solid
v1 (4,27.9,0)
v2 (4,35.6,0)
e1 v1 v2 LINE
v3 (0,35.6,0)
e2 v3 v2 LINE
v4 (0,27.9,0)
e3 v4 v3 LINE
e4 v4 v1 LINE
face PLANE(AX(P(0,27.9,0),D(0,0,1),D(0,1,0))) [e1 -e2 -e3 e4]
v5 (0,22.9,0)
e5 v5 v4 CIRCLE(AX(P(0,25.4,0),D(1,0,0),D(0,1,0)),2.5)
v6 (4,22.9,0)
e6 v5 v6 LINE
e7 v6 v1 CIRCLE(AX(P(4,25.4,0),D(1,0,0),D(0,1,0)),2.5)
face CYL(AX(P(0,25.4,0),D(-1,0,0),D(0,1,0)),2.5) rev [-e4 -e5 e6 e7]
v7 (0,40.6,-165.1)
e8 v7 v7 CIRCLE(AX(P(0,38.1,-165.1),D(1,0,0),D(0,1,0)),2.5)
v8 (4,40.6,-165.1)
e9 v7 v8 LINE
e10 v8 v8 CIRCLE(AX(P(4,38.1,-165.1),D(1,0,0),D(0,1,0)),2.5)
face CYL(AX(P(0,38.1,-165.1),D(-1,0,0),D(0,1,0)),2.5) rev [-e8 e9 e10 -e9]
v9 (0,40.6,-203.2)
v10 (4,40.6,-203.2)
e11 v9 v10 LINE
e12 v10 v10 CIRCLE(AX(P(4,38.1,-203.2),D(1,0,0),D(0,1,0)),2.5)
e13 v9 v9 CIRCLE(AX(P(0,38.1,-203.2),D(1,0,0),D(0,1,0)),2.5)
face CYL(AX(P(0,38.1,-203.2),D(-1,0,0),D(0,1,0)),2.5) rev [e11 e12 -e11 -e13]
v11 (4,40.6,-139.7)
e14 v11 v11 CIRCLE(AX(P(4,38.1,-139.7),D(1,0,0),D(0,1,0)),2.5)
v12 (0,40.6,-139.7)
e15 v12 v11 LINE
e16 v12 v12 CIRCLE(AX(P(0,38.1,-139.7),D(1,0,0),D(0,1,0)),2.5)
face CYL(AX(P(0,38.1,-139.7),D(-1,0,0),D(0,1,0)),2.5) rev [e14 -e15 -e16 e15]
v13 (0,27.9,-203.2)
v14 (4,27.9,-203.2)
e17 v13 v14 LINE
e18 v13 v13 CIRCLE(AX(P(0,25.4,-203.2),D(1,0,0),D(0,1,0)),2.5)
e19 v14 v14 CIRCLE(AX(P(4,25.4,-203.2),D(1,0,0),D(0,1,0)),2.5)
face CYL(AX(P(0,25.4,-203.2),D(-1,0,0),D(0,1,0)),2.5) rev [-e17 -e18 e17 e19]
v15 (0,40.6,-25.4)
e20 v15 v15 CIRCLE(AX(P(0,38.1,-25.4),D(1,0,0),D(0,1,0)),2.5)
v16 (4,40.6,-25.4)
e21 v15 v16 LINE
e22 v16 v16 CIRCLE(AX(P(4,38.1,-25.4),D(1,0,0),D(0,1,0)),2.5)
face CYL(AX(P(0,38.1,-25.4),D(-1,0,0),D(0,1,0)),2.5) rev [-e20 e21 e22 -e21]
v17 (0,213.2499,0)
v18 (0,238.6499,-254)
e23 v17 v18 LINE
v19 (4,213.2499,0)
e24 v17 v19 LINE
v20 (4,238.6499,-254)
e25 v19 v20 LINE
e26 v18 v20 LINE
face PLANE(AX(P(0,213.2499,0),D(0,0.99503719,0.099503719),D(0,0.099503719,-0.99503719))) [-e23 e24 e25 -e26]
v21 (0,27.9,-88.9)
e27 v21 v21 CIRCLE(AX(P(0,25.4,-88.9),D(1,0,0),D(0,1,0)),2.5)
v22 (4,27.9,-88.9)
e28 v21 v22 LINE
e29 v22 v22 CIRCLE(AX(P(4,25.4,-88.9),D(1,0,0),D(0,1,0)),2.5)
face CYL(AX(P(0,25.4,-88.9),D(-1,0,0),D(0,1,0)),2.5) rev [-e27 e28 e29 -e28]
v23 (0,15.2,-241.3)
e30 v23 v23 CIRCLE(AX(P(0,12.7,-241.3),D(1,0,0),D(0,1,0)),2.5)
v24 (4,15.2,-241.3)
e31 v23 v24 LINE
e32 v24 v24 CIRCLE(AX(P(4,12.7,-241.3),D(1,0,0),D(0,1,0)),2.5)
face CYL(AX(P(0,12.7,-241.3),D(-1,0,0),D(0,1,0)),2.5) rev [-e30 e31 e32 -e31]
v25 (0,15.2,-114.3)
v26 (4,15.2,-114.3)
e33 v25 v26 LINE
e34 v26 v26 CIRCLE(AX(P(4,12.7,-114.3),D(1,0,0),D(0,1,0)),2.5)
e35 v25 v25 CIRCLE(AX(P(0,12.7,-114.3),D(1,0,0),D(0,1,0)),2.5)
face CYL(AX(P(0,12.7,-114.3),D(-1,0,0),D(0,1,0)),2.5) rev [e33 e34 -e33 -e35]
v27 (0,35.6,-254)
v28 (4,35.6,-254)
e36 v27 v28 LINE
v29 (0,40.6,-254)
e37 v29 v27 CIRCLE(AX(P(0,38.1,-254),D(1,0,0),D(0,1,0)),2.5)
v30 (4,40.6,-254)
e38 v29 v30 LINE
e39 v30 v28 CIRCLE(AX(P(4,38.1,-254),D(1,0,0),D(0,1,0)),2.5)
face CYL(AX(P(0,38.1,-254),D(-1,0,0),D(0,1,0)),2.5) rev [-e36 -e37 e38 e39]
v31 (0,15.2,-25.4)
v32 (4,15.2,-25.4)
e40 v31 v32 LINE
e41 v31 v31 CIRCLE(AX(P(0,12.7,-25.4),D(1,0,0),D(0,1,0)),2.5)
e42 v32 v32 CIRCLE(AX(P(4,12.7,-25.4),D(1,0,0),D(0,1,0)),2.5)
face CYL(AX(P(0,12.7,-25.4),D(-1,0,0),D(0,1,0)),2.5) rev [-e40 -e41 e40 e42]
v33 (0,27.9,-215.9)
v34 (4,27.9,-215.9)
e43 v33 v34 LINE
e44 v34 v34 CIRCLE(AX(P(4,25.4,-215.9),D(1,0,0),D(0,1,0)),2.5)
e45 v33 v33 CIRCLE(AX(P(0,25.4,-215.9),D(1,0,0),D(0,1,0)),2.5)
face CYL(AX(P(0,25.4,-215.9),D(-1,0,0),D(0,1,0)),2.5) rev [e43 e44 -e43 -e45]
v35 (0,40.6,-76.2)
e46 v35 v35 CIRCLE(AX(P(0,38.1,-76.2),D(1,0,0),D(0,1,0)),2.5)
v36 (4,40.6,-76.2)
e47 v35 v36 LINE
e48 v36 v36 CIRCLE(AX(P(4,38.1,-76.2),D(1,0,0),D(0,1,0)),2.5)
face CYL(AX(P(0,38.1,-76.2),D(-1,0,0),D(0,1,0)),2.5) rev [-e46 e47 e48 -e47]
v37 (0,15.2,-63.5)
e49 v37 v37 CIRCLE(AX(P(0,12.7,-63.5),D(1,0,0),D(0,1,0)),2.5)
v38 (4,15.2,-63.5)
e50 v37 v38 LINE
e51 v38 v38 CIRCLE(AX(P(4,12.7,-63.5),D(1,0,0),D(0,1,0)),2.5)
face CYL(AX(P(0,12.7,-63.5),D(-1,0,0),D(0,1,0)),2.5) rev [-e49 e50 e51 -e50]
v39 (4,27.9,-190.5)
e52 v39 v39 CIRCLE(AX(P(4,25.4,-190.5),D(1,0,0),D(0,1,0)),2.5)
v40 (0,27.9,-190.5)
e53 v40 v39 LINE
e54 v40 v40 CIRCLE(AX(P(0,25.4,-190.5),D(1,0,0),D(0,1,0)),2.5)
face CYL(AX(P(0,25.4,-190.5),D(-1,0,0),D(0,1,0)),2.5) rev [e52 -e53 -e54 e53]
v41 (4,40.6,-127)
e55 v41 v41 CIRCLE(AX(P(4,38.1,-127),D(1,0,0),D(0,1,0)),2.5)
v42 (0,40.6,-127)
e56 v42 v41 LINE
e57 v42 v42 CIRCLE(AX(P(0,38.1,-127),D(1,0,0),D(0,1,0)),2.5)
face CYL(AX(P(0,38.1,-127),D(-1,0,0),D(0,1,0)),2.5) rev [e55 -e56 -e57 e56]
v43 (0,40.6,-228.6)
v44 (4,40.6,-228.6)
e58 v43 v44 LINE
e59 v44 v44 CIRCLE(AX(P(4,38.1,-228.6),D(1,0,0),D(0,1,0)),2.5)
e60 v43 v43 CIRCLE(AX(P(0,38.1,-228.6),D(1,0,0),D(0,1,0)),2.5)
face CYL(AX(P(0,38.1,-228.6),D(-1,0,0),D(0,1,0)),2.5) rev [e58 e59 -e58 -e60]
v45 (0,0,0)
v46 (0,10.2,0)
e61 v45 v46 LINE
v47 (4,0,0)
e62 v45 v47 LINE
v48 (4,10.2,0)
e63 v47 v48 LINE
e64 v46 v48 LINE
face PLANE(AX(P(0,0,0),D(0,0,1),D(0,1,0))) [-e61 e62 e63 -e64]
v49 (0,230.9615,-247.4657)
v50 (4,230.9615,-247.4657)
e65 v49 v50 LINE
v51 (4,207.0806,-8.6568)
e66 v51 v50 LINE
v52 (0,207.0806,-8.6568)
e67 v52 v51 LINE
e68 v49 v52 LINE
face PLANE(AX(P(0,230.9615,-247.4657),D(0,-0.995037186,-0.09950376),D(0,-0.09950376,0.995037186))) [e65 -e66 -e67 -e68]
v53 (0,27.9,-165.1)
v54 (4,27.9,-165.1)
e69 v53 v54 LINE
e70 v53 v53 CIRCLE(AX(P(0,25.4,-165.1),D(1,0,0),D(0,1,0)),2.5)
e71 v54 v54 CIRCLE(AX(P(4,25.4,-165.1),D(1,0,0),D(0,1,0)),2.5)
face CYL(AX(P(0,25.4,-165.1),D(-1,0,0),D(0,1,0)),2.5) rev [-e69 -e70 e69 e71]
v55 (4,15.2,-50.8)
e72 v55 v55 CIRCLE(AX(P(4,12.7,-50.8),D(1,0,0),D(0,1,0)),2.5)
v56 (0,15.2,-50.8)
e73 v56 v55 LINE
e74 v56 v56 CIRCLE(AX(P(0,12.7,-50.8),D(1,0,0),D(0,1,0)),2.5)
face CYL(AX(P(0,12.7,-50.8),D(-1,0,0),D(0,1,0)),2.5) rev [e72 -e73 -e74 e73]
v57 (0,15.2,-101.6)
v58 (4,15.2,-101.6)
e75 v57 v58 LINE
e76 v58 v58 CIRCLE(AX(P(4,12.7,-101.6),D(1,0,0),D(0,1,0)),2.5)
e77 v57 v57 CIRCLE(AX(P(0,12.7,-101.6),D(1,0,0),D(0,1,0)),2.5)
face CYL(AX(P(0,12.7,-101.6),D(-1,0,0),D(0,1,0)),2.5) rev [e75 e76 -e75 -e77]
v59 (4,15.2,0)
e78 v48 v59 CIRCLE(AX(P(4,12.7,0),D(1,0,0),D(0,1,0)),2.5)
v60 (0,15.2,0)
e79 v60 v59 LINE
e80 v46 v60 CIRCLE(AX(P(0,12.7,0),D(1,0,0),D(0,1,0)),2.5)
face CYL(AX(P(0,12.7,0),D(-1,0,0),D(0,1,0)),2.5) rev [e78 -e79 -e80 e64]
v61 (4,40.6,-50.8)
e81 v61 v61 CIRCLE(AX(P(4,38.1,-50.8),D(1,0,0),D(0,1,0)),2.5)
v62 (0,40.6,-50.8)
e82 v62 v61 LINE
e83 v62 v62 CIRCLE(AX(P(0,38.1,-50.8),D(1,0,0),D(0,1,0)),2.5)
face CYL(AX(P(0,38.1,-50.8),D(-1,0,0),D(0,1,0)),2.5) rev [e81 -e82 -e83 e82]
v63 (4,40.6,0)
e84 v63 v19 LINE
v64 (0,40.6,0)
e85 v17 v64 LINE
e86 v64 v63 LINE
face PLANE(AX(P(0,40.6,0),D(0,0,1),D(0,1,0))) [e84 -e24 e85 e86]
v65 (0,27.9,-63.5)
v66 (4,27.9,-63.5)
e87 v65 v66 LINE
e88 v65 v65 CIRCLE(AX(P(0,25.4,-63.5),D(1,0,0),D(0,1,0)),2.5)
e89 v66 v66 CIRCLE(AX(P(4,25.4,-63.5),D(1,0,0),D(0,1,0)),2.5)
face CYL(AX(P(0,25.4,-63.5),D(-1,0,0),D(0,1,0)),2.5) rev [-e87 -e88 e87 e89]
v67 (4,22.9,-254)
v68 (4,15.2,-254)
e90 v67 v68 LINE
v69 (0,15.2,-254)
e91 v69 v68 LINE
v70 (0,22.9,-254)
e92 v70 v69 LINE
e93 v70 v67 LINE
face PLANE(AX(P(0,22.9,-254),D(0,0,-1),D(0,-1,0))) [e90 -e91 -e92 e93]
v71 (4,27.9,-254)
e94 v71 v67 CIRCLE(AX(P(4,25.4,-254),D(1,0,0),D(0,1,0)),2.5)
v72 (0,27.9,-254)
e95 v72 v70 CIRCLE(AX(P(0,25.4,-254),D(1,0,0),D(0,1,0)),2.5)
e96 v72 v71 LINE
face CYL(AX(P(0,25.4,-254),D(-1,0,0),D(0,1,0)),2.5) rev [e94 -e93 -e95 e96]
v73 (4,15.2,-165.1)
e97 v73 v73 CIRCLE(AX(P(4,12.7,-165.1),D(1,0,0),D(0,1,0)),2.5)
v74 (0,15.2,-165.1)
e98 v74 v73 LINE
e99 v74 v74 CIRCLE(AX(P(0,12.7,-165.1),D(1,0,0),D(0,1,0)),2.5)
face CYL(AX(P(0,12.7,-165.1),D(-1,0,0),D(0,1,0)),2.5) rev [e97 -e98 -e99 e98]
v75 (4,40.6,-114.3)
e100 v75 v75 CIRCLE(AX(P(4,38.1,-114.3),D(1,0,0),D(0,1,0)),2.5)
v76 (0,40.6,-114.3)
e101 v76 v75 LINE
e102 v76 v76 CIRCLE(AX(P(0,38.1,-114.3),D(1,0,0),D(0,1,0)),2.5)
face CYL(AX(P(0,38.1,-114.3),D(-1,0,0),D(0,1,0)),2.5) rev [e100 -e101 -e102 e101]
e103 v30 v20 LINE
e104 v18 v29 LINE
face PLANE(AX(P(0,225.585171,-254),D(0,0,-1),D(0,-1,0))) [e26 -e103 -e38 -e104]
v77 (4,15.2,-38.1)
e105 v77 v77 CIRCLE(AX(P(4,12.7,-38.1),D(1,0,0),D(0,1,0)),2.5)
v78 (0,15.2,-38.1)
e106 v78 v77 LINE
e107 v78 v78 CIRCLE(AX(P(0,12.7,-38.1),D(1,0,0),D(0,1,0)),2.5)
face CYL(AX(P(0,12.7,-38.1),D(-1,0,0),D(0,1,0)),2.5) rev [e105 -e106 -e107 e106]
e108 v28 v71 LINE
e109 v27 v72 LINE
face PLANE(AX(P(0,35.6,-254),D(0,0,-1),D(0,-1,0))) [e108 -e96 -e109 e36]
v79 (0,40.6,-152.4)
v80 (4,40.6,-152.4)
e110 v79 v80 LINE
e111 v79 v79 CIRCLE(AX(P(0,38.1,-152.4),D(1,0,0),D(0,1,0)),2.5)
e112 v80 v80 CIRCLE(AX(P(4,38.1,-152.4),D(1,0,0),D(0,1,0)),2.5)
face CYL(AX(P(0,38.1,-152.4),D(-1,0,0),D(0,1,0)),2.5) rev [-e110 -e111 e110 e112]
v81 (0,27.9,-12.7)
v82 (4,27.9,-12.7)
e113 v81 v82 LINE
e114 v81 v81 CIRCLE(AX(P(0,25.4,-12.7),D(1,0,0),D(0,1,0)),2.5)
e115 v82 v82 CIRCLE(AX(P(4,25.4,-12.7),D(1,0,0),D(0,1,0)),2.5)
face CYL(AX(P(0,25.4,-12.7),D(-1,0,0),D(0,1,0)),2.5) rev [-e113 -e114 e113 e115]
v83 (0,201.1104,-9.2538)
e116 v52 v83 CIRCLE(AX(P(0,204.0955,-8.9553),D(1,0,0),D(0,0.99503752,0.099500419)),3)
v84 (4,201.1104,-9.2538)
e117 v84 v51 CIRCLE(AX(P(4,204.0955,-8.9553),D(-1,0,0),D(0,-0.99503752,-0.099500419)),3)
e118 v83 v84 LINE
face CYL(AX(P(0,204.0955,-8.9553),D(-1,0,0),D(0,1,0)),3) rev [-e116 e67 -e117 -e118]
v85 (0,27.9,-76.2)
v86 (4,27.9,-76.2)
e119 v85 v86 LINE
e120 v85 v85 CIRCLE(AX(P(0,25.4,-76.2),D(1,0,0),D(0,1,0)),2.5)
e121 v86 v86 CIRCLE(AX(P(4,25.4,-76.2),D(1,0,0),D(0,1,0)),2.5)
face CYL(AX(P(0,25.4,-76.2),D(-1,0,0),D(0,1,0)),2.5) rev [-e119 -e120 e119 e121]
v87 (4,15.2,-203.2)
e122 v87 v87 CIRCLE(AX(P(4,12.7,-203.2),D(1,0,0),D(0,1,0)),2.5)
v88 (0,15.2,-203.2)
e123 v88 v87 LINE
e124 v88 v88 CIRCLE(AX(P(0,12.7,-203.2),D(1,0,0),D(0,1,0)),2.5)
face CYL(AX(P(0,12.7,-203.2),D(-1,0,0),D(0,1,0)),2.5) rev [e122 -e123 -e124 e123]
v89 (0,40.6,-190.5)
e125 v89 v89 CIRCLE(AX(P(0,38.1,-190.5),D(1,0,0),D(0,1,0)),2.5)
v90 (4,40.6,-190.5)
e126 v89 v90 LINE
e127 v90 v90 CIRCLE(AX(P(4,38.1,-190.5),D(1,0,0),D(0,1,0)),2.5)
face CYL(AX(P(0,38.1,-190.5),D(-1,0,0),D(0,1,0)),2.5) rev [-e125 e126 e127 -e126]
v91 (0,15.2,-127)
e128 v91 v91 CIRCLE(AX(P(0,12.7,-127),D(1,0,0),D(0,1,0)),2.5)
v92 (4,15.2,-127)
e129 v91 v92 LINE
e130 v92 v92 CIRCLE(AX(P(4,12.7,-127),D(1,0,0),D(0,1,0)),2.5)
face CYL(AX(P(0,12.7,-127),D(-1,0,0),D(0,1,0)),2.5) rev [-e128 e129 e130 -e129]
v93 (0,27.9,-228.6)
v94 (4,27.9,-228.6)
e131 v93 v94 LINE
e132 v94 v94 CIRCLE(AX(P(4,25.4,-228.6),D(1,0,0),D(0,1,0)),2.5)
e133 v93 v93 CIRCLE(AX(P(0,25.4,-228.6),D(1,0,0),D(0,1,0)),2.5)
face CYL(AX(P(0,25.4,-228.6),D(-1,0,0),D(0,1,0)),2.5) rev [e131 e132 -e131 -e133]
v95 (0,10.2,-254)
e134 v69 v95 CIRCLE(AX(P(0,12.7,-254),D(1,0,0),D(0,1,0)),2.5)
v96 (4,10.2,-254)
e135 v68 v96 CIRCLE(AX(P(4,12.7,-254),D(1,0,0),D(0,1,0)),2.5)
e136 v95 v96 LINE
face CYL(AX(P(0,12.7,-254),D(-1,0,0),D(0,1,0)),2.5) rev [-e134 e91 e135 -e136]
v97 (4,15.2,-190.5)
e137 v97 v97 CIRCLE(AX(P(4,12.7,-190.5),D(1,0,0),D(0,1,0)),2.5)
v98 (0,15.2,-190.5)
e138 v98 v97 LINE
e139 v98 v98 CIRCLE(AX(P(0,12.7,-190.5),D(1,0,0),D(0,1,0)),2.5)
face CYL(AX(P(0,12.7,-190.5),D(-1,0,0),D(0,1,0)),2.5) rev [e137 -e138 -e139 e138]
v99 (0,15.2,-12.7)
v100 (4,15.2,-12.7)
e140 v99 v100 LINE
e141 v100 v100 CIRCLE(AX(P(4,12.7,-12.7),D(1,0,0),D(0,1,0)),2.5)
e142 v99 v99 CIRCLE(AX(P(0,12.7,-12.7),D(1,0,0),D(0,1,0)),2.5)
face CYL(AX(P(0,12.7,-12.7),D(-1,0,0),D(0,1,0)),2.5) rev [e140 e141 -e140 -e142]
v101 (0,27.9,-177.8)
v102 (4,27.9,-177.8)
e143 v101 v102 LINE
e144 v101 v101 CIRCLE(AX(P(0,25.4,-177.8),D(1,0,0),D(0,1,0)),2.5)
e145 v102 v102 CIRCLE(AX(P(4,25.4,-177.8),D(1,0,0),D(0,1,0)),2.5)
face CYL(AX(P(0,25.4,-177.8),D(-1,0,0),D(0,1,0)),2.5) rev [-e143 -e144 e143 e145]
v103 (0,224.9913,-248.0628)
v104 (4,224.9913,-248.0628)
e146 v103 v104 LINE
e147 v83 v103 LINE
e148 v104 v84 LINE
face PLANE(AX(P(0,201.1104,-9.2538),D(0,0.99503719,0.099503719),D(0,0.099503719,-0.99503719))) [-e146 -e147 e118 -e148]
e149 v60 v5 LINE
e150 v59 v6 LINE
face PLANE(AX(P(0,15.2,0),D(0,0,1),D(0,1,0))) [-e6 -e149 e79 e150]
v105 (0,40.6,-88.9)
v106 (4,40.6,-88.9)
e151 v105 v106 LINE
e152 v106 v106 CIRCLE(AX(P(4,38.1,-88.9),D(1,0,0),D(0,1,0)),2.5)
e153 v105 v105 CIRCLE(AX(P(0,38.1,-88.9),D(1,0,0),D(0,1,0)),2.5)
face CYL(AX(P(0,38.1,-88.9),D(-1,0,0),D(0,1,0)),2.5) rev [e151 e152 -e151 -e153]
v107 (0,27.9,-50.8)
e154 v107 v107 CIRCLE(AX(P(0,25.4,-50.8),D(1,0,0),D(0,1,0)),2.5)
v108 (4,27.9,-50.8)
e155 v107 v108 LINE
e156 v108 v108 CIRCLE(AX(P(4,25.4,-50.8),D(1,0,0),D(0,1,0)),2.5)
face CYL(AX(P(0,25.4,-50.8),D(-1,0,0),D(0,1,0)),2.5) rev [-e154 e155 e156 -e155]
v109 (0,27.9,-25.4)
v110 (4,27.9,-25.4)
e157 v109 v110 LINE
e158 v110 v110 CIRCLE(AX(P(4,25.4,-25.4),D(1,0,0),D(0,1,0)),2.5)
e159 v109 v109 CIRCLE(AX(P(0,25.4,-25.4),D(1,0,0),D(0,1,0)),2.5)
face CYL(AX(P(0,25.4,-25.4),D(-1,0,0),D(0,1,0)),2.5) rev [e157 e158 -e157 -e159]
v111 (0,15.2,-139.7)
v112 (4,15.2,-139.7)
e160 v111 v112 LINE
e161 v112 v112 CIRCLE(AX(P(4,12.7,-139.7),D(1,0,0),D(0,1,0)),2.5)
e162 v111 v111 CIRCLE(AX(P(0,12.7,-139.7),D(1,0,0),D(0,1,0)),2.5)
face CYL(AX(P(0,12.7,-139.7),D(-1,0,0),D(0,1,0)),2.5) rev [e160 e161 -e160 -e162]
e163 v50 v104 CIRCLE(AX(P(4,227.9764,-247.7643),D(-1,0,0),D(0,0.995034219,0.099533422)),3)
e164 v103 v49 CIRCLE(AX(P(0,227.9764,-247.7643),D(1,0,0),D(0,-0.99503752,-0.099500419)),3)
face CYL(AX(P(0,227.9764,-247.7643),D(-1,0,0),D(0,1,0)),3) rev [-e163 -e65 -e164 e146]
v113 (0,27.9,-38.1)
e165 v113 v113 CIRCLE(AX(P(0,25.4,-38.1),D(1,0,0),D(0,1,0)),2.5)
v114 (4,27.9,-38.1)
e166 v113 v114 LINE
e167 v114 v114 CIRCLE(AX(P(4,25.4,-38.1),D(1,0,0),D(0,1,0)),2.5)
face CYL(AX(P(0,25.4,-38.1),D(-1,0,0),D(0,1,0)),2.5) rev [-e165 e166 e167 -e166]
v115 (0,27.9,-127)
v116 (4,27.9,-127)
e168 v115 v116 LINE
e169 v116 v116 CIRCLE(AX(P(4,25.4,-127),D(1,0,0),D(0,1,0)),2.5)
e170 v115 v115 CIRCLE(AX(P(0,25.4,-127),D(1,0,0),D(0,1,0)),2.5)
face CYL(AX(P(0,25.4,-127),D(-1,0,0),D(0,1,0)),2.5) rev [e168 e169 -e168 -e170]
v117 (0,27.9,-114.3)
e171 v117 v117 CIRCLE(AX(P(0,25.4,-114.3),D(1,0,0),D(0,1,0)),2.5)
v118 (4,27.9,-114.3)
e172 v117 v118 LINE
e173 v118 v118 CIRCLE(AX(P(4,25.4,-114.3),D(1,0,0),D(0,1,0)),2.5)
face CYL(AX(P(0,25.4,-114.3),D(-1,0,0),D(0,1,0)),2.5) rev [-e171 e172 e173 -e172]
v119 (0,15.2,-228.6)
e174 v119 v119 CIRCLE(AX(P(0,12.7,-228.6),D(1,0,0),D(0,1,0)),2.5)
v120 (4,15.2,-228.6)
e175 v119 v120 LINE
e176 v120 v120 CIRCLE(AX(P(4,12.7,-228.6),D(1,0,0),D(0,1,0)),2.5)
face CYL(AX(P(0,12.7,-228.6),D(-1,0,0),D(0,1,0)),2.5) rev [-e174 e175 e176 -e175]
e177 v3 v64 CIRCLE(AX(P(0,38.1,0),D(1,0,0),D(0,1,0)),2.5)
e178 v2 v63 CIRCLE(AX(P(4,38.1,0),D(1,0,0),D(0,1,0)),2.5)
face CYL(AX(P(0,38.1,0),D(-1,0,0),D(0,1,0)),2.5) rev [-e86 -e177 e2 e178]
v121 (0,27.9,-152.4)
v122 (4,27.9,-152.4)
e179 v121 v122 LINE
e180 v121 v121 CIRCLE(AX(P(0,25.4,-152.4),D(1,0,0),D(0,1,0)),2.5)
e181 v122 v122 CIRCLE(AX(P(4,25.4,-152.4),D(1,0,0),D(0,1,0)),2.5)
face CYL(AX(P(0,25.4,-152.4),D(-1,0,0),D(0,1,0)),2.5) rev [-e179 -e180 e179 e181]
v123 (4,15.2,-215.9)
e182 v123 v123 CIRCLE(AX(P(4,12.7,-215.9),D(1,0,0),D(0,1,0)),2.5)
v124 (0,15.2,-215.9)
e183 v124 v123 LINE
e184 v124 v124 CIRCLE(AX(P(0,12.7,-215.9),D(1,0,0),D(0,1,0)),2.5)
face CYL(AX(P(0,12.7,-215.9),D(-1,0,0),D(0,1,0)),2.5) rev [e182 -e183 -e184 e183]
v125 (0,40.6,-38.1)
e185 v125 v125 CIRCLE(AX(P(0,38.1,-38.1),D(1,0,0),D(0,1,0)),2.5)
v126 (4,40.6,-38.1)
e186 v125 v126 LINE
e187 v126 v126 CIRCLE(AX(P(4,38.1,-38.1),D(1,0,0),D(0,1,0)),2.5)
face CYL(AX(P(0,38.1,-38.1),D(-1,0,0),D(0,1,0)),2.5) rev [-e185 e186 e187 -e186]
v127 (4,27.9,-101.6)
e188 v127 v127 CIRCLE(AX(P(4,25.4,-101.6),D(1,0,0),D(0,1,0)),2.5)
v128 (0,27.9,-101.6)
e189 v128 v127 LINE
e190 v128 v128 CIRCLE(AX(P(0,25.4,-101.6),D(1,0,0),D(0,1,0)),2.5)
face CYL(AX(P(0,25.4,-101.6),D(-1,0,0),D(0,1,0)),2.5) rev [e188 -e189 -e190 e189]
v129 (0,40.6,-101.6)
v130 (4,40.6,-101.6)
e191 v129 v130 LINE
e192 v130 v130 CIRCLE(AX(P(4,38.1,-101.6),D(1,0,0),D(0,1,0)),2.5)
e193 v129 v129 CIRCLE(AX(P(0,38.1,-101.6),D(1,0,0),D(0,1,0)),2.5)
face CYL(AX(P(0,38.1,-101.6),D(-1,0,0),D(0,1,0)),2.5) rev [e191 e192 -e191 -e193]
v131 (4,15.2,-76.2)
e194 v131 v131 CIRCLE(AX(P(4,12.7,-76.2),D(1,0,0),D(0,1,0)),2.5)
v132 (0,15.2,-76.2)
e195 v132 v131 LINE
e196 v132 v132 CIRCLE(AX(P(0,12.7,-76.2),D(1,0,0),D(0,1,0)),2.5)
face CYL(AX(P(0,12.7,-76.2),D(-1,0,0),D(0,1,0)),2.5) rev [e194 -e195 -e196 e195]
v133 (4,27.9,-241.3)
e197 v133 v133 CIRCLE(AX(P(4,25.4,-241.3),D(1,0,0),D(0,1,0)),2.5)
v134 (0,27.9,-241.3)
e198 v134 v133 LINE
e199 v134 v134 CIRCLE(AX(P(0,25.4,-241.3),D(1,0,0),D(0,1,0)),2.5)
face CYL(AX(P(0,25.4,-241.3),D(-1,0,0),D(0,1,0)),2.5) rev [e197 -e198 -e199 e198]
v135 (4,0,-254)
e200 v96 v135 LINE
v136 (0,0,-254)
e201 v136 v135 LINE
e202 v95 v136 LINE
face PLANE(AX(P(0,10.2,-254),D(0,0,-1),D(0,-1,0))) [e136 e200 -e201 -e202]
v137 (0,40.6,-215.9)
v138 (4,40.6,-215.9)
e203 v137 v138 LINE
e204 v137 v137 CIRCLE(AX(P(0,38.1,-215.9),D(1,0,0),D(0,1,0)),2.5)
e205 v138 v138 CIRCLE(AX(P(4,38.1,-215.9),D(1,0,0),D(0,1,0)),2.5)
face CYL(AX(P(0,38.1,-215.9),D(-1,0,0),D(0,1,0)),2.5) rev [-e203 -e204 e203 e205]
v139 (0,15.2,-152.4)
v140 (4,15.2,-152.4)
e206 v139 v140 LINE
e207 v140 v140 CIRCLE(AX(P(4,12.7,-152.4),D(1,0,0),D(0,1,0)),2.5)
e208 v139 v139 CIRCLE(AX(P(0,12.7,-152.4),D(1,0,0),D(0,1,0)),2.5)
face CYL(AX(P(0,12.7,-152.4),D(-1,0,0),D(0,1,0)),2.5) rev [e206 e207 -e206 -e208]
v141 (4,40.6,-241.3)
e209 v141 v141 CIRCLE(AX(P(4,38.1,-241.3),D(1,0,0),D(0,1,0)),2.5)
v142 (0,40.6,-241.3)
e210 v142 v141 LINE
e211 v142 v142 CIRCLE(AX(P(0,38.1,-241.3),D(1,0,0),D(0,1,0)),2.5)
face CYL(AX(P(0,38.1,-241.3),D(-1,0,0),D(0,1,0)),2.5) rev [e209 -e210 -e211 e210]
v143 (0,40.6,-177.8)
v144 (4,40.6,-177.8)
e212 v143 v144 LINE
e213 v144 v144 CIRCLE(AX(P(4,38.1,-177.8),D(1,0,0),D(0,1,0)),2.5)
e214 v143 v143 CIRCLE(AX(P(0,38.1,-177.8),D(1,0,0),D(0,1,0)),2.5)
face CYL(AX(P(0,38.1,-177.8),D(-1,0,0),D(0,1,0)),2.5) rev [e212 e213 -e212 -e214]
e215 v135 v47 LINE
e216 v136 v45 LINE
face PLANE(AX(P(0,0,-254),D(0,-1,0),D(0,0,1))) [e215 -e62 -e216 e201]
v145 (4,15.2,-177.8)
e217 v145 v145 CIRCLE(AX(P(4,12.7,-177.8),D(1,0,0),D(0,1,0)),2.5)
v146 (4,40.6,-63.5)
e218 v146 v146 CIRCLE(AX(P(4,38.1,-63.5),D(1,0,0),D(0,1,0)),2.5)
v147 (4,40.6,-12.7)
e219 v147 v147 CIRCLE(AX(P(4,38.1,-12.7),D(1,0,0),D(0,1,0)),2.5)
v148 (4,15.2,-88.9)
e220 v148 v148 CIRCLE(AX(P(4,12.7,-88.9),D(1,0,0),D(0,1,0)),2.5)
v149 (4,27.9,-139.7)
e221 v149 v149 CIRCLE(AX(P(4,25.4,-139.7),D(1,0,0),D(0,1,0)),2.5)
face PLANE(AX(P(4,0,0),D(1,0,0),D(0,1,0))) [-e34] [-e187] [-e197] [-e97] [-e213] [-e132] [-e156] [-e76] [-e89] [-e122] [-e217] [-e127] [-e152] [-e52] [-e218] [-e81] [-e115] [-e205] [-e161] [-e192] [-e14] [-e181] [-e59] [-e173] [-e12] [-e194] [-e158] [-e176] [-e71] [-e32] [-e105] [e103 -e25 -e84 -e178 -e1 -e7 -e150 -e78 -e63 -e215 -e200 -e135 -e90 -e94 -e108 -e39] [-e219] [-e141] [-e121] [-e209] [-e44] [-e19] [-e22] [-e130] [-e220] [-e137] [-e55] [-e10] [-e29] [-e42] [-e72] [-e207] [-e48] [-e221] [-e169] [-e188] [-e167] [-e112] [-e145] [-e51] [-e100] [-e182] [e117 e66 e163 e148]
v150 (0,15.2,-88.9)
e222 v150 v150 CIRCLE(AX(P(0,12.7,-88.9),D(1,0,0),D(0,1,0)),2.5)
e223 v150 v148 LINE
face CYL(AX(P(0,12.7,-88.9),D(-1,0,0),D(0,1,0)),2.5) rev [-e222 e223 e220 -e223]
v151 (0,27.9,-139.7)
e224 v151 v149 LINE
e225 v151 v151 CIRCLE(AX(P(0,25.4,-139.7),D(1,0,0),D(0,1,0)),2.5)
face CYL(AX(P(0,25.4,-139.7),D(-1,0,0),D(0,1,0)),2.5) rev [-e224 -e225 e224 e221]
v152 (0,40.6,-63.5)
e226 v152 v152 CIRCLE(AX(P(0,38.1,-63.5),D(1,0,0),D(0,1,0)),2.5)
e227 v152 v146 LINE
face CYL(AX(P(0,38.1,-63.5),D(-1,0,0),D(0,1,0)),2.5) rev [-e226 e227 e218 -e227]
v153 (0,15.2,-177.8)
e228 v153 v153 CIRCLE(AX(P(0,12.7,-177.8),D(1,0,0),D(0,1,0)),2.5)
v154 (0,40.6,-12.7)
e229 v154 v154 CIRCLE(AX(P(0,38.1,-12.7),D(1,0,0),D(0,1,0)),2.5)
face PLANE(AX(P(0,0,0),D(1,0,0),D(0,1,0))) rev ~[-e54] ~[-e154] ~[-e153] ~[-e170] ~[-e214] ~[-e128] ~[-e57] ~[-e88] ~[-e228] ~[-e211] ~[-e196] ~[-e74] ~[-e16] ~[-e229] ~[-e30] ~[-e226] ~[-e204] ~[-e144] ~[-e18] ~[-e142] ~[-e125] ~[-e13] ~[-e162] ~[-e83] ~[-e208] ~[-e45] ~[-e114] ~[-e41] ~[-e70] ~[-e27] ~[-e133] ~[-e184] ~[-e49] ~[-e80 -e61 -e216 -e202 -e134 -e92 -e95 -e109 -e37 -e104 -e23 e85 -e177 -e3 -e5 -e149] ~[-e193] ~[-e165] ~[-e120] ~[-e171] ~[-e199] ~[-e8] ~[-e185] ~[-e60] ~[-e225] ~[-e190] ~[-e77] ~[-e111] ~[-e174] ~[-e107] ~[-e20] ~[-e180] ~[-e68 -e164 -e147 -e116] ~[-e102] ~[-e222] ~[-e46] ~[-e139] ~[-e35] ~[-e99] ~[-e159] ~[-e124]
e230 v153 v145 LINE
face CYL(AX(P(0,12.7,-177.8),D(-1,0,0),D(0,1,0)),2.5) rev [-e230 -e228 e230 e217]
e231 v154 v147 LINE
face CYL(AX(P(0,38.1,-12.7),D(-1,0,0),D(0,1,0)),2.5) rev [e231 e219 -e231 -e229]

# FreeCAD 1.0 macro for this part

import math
import FreeCAD as App
import Part
import Sketcher
Q = App.Units.Quantity

doc = App.newDocument("Part")
params = doc.addObject("Spreadsheet::Sheet", "Params")
for row, (alias, value) in enumerate([
    ("sketch1_diameter", "5 mm"),
    ("sketch1_radius", "3 mm"),
    ("sketch1_height", "254 mm"),
    ("sketch1_length", "240 mm"),
    ("sketch1_width", "7.7 mm"),
    ("pad1_length", "4 mm"),
], start=1):
    params.set(f"A{row}", alias)
    params.set(f"B{row}", "=" + value)
    params.setAlias(f"B{row}", alias)

body = doc.addObject("PartDesign::Body", "Body")

# Sketch on YZ plane
sketch1 = body.newObject("Sketcher::SketchObject", "Sketch")
sketch1.AttachmentSupport = (doc.getObject("YZ_Plane"), [""])
sketch1.MapMode = "FlatFace"
sketch1.addGeometry(Part.ArcOfCircle(Part.Circle(App.Vector(38.1, 0, 0), App.Vector(0, 0, 1), 2.5), math.radians(180), math.radians(360)), False)
sketch1.addGeometry(Part.LineSegment(App.Vector(35.6, 0, 0), App.Vector(27.9, 0, 0)), False)
sketch1.addGeometry(Part.ArcOfCircle(Part.Circle(App.Vector(25.4, 0, 0), App.Vector(0, 0, 1), 2.5), math.radians(180), math.radians(360)), False)
sketch1.addGeometry(Part.LineSegment(App.Vector(22.9, 0, 0), App.Vector(15.2, 0, 0)), False)
sketch1.addGeometry(Part.ArcOfCircle(Part.Circle(App.Vector(12.7, 0, 0), App.Vector(0, 0, 1), 2.5), math.radians(180), math.radians(360)), False)
sketch1.addGeometry(Part.LineSegment(App.Vector(10.2, 0, 0), App.Vector(0, 0, 0)), False)
sketch1.addGeometry(Part.LineSegment(App.Vector(0, 0, 0), App.Vector(0, -254, 0)), False)
sketch1.addGeometry(Part.LineSegment(App.Vector(0, -254, 0), App.Vector(10.2, -254, 0)), False)
sketch1.addGeometry(Part.ArcOfCircle(Part.Circle(App.Vector(12.7, -254, 0), App.Vector(0, 0, 1), 2.5), math.radians(0), math.radians(180)), False)
sketch1.addGeometry(Part.LineSegment(App.Vector(15.2, -254, 0), App.Vector(22.9, -254, 0)), False)
sketch1.addGeometry(Part.ArcOfCircle(Part.Circle(App.Vector(25.4, -254, 0), App.Vector(0, 0, 1), 2.5), math.radians(0), math.radians(180)), False)
sketch1.addGeometry(Part.LineSegment(App.Vector(27.9, -254, 0), App.Vector(35.6, -254, 0)), False)
sketch1.addGeometry(Part.ArcOfCircle(Part.Circle(App.Vector(38.1, -254, 0), App.Vector(0, 0, 1), 2.5), math.radians(0), math.radians(180)), False)
sketch1.addGeometry(Part.LineSegment(App.Vector(40.6, -254, 0), App.Vector(238.6, -254, 0)), False)
sketch1.addGeometry(Part.LineSegment(App.Vector(238.6, -254, 0), App.Vector(213.2, 0, 0)), False)
sketch1.addGeometry(Part.LineSegment(App.Vector(213.2, 0, 0), App.Vector(40.6, 0, 0)), False)
sketch1.addGeometry(Part.ArcOfCircle(Part.Circle(App.Vector(204.1, -9, 0), App.Vector(0, 0, 1), 3), math.radians(6), math.radians(186)), False)
sketch1.addGeometry(Part.LineSegment(App.Vector(207.1, -8.7, 0), App.Vector(231, -247.5, 0)), False)
sketch1.addGeometry(Part.ArcOfCircle(Part.Circle(App.Vector(228, -247.8, 0), App.Vector(0, 0, 1), 3), math.radians(-174), math.radians(6)), False)
sketch1.addGeometry(Part.LineSegment(App.Vector(225, -248.1, 0), App.Vector(201.1, -9.3, 0)), False)
sketch1.addGeometry(Part.Circle(App.Vector(12.7, -241.3, 0), App.Vector(0, 0, 1), 2.5), False)
sketch1.addGeometry(Part.Circle(App.Vector(25.4, -241.3, 0), App.Vector(0, 0, 1), 2.5), False)
sketch1.addGeometry(Part.Circle(App.Vector(12.7, -228.6, 0), App.Vector(0, 0, 1), 2.5), False)
sketch1.addGeometry(Part.Circle(App.Vector(25.4, -228.6, 0), App.Vector(0, 0, 1), 2.5), False)
sketch1.addGeometry(Part.Circle(App.Vector(38.1, -241.3, 0), App.Vector(0, 0, 1), 2.5), False)
sketch1.addGeometry(Part.Circle(App.Vector(38.1, -228.6, 0), App.Vector(0, 0, 1), 2.5), False)
sketch1.addGeometry(Part.Circle(App.Vector(12.7, -215.9, 0), App.Vector(0, 0, 1), 2.5), False)
sketch1.addGeometry(Part.Circle(App.Vector(25.4, -215.9, 0), App.Vector(0, 0, 1), 2.5), False)
sketch1.addGeometry(Part.Circle(App.Vector(12.7, -203.2, 0), App.Vector(0, 0, 1), 2.5), False)
sketch1.addGeometry(Part.Circle(App.Vector(25.4, -203.2, 0), App.Vector(0, 0, 1), 2.5), False)
sketch1.addGeometry(Part.Circle(App.Vector(38.1, -215.9, 0), App.Vector(0, 0, 1), 2.5), False)
sketch1.addGeometry(Part.Circle(App.Vector(38.1, -203.2, 0), App.Vector(0, 0, 1), 2.5), False)
sketch1.addGeometry(Part.Circle(App.Vector(12.7, -190.5, 0), App.Vector(0, 0, 1), 2.5), False)
sketch1.addGeometry(Part.Circle(App.Vector(12.7, -177.8, 0), App.Vector(0, 0, 1), 2.5), False)
sketch1.addGeometry(Part.Circle(App.Vector(25.4, -190.5, 0), App.Vector(0, 0, 1), 2.5), False)
sketch1.addGeometry(Part.Circle(App.Vector(25.4, -177.8, 0), App.Vector(0, 0, 1), 2.5), False)
sketch1.addGeometry(Part.Circle(App.Vector(12.7, -165.1, 0), App.Vector(0, 0, 1), 2.5), False)
sketch1.addGeometry(Part.Circle(App.Vector(25.4, -165.1, 0), App.Vector(0, 0, 1), 2.5), False)
sketch1.addGeometry(Part.Circle(App.Vector(38.1, -190.5, 0), App.Vector(0, 0, 1), 2.5), False)
sketch1.addGeometry(Part.Circle(App.Vector(38.1, -177.8, 0), App.Vector(0, 0, 1), 2.5), False)
sketch1.addGeometry(Part.Circle(App.Vector(38.1, -165.1, 0), App.Vector(0, 0, 1), 2.5), False)
sketch1.addGeometry(Part.Circle(App.Vector(12.7, -152.4, 0), App.Vector(0, 0, 1), 2.5), False)
sketch1.addGeometry(Part.Circle(App.Vector(25.4, -152.4, 0), App.Vector(0, 0, 1), 2.5), False)
sketch1.addGeometry(Part.Circle(App.Vector(12.7, -139.7, 0), App.Vector(0, 0, 1), 2.5), False)
sketch1.addGeometry(Part.Circle(App.Vector(25.4, -139.7, 0), App.Vector(0, 0, 1), 2.5), False)
sketch1.addGeometry(Part.Circle(App.Vector(38.1, -152.4, 0), App.Vector(0, 0, 1), 2.5), False)
sketch1.addGeometry(Part.Circle(App.Vector(38.1, -139.7, 0), App.Vector(0, 0, 1), 2.5), False)
sketch1.addGeometry(Part.Circle(App.Vector(12.7, -127, 0), App.Vector(0, 0, 1), 2.5), False)
sketch1.addGeometry(Part.Circle(App.Vector(12.7, -114.3, 0), App.Vector(0, 0, 1), 2.5), False)
sketch1.addGeometry(Part.Circle(App.Vector(25.4, -127, 0), App.Vector(0, 0, 1), 2.5), False)
sketch1.addGeometry(Part.Circle(App.Vector(25.4, -114.3, 0), App.Vector(0, 0, 1), 2.5), False)
sketch1.addGeometry(Part.Circle(App.Vector(12.7, -101.6, 0), App.Vector(0, 0, 1), 2.5), False)
sketch1.addGeometry(Part.Circle(App.Vector(25.4, -101.6, 0), App.Vector(0, 0, 1), 2.5), False)
sketch1.addGeometry(Part.Circle(App.Vector(38.1, -127, 0), App.Vector(0, 0, 1), 2.5), False)
sketch1.addGeometry(Part.Circle(App.Vector(38.1, -114.3, 0), App.Vector(0, 0, 1), 2.5), False)
sketch1.addGeometry(Part.Circle(App.Vector(38.1, -101.6, 0), App.Vector(0, 0, 1), 2.5), False)
sketch1.addGeometry(Part.Circle(App.Vector(12.7, -88.9, 0), App.Vector(0, 0, 1), 2.5), False)
sketch1.addGeometry(Part.Circle(App.Vector(25.4, -88.9, 0), App.Vector(0, 0, 1), 2.5), False)
sketch1.addGeometry(Part.Circle(App.Vector(12.7, -76.2, 0), App.Vector(0, 0, 1), 2.5), False)
sketch1.addGeometry(Part.Circle(App.Vector(12.7, -63.5, 0), App.Vector(0, 0, 1), 2.5), False)
sketch1.addGeometry(Part.Circle(App.Vector(25.4, -76.2, 0), App.Vector(0, 0, 1), 2.5), False)
sketch1.addGeometry(Part.Circle(App.Vector(25.4, -63.5, 0), App.Vector(0, 0, 1), 2.5), False)
sketch1.addGeometry(Part.Circle(App.Vector(38.1, -88.9, 0), App.Vector(0, 0, 1), 2.5), False)
sketch1.addGeometry(Part.Circle(App.Vector(38.1, -76.2, 0), App.Vector(0, 0, 1), 2.5), False)
sketch1.addGeometry(Part.Circle(App.Vector(38.1, -63.5, 0), App.Vector(0, 0, 1), 2.5), False)
sketch1.addGeometry(Part.Circle(App.Vector(12.7, -50.8, 0), App.Vector(0, 0, 1), 2.5), False)
sketch1.addGeometry(Part.Circle(App.Vector(25.4, -50.8, 0), App.Vector(0, 0, 1), 2.5), False)
sketch1.addGeometry(Part.Circle(App.Vector(12.7, -38.1, 0), App.Vector(0, 0, 1), 2.5), False)
sketch1.addGeometry(Part.Circle(App.Vector(25.4, -38.1, 0), App.Vector(0, 0, 1), 2.5), False)
sketch1.addGeometry(Part.Circle(App.Vector(38.1, -50.8, 0), App.Vector(0, 0, 1), 2.5), False)
sketch1.addGeometry(Part.Circle(App.Vector(38.1, -38.1, 0), App.Vector(0, 0, 1), 2.5), False)
sketch1.addGeometry(Part.Circle(App.Vector(12.7, -25.4, 0), App.Vector(0, 0, 1), 2.5), False)
sketch1.addGeometry(Part.Circle(App.Vector(25.4, -25.4, 0), App.Vector(0, 0, 1), 2.5), False)
sketch1.addGeometry(Part.Circle(App.Vector(12.7, -12.7, 0), App.Vector(0, 0, 1), 2.5), False)
sketch1.addGeometry(Part.Circle(App.Vector(25.4, -12.7, 0), App.Vector(0, 0, 1), 2.5), False)
sketch1.addGeometry(Part.Circle(App.Vector(38.1, -25.4, 0), App.Vector(0, 0, 1), 2.5), False)
sketch1.addGeometry(Part.Circle(App.Vector(38.1, -12.7, 0), App.Vector(0, 0, 1), 2.5), False)
sketch1.addConstraint(Sketcher.Constraint("Coincident", 0, 1, 1, 1))
sketch1.addConstraint(Sketcher.Constraint("Coincident", 1, 2, 2, 2))
sketch1.addConstraint(Sketcher.Constraint("Coincident", 2, 1, 3, 1))
sketch1.addConstraint(Sketcher.Constraint("Coincident", 3, 2, 4, 2))
sketch1.addConstraint(Sketcher.Constraint("Coincident", 4, 1, 5, 1))
sketch1.addConstraint(Sketcher.Constraint("Coincident", 5, 2, 6, 1))
sketch1.addConstraint(Sketcher.Constraint("Coincident", 6, 2, 7, 1))
sketch1.addConstraint(Sketcher.Constraint("Coincident", 7, 2, 8, 2))
sketch1.addConstraint(Sketcher.Constraint("Coincident", 8, 1, 9, 1))
sketch1.addConstraint(Sketcher.Constraint("Coincident", 9, 2, 10, 2))
sketch1.addConstraint(Sketcher.Constraint("Coincident", 10, 1, 11, 1))
sketch1.addConstraint(Sketcher.Constraint("Coincident", 11, 2, 12, 2))
sketch1.addConstraint(Sketcher.Constraint("Coincident", 12, 1, 13, 1))
sketch1.addConstraint(Sketcher.Constraint("Coincident", 13, 2, 14, 1))
sketch1.addConstraint(Sketcher.Constraint("Coincident", 14, 2, 15, 1))
sketch1.addConstraint(Sketcher.Constraint("Coincident", 15, 2, 0, 2))
sketch1.addConstraint(Sketcher.Constraint("Tangent", 16, 1, 17, 1))
sketch1.addConstraint(Sketcher.Constraint("Tangent", 17, 2, 18, 2))
sketch1.addConstraint(Sketcher.Constraint("Tangent", 18, 1, 19, 1))
sketch1.addConstraint(Sketcher.Constraint("Tangent", 19, 2, 16, 2))
sketch1.addConstraint(Sketcher.Constraint("Horizontal", 1))
sketch1.addConstraint(Sketcher.Constraint("Horizontal", 3))
sketch1.addConstraint(Sketcher.Constraint("Horizontal", 5))
sketch1.addConstraint(Sketcher.Constraint("Vertical", 6))
sketch1.addConstraint(Sketcher.Constraint("Horizontal", 7))
sketch1.addConstraint(Sketcher.Constraint("Horizontal", 9))
sketch1.addConstraint(Sketcher.Constraint("Horizontal", 11))
sketch1.addConstraint(Sketcher.Constraint("Horizontal", 13))
sketch1.addConstraint(Sketcher.Constraint("Horizontal", 15))
sketch1.addConstraint(Sketcher.Constraint("Coincident", 5, 2, -1, 1))
sketch1.addConstraint(Sketcher.Constraint("Equal", 0, 2))
sketch1.addConstraint(Sketcher.Constraint("Equal", 2, 4))
sketch1.addConstraint(Sketcher.Constraint("Equal", 4, 8))
sketch1.addConstraint(Sketcher.Constraint("Equal", 8, 10))
sketch1.addConstraint(Sketcher.Constraint("Equal", 10, 12))
sketch1.addConstraint(Sketcher.Constraint("Equal", 16, 18))
sketch1.addConstraint(Sketcher.Constraint("Equal", 12, 20))
sketch1.addConstraint(Sketcher.Constraint("Equal", 20, 21))
sketch1.addConstraint(Sketcher.Constraint("Equal", 21, 22))
sketch1.addConstraint(Sketcher.Constraint("Equal", 22, 23))
sketch1.addConstraint(Sketcher.Constraint("Equal", 23, 24))
sketch1.addConstraint(Sketcher.Constraint("Equal", 24, 25))
sketch1.addConstraint(Sketcher.Constraint("Equal", 25, 26))
sketch1.addConstraint(Sketcher.Constraint("Equal", 26, 27))
sketch1.addConstraint(Sketcher.Constraint("Equal", 27, 28))
sketch1.addConstraint(Sketcher.Constraint("Equal", 28, 29))
sketch1.addConstraint(Sketcher.Constraint("Equal", 29, 30))
sketch1.addConstraint(Sketcher.Constraint("Equal", 30, 31))
sketch1.addConstraint(Sketcher.Constraint("Equal", 31, 32))
sketch1.addConstraint(Sketcher.Constraint("Equal", 32, 33))
sketch1.addConstraint(Sketcher.Constraint("Equal", 33, 34))
sketch1.addConstraint(Sketcher.Constraint("Equal", 34, 35))
sketch1.addConstraint(Sketcher.Constraint("Equal", 35, 36))
sketch1.addConstraint(Sketcher.Constraint("Equal", 36, 37))
sketch1.addConstraint(Sketcher.Constraint("Equal", 37, 38))
sketch1.addConstraint(Sketcher.Constraint("Equal", 38, 39))
sketch1.addConstraint(Sketcher.Constraint("Equal", 39, 40))
sketch1.addConstraint(Sketcher.Constraint("Equal", 40, 41))
sketch1.addConstraint(Sketcher.Constraint("Equal", 41, 42))
sketch1.addConstraint(Sketcher.Constraint("Equal", 42, 43))
sketch1.addConstraint(Sketcher.Constraint("Equal", 43, 44))
sketch1.addConstraint(Sketcher.Constraint("Equal", 44, 45))
sketch1.addConstraint(Sketcher.Constraint("Equal", 45, 46))
sketch1.addConstraint(Sketcher.Constraint("Equal", 46, 47))
sketch1.addConstraint(Sketcher.Constraint("Equal", 47, 48))
sketch1.addConstraint(Sketcher.Constraint("Equal", 48, 49))
sketch1.addConstraint(Sketcher.Constraint("Equal", 49, 50))
sketch1.addConstraint(Sketcher.Constraint("Equal", 50, 51))
sketch1.addConstraint(Sketcher.Constraint("Equal", 51, 52))
sketch1.addConstraint(Sketcher.Constraint("Equal", 52, 53))
sketch1.addConstraint(Sketcher.Constraint("Equal", 53, 54))
sketch1.addConstraint(Sketcher.Constraint("Equal", 54, 55))
sketch1.addConstraint(Sketcher.Constraint("Equal", 55, 56))
sketch1.addConstraint(Sketcher.Constraint("Equal", 56, 57))
sketch1.addConstraint(Sketcher.Constraint("Equal", 57, 58))
sketch1.addConstraint(Sketcher.Constraint("Equal", 58, 59))
sketch1.addConstraint(Sketcher.Constraint("Equal", 59, 60))
sketch1.addConstraint(Sketcher.Constraint("Equal", 60, 61))
sketch1.addConstraint(Sketcher.Constraint("Equal", 61, 62))
sketch1.addConstraint(Sketcher.Constraint("Equal", 62, 63))
sketch1.addConstraint(Sketcher.Constraint("Equal", 63, 64))
sketch1.addConstraint(Sketcher.Constraint("Equal", 64, 65))
sketch1.addConstraint(Sketcher.Constraint("Equal", 65, 66))
sketch1.addConstraint(Sketcher.Constraint("Equal", 66, 67))
sketch1.addConstraint(Sketcher.Constraint("Equal", 67, 68))
sketch1.addConstraint(Sketcher.Constraint("Equal", 68, 69))
sketch1.addConstraint(Sketcher.Constraint("Equal", 69, 70))
sketch1.addConstraint(Sketcher.Constraint("Equal", 70, 71))
sketch1.addConstraint(Sketcher.Constraint("Equal", 71, 72))
sketch1.addConstraint(Sketcher.Constraint("Equal", 72, 73))
sketch1.addConstraint(Sketcher.Constraint("Equal", 73, 74))
sketch1.addConstraint(Sketcher.Constraint("Equal", 74, 75))
sketch1.addConstraint(Sketcher.Constraint("Equal", 75, 76))
sketch1.addConstraint(Sketcher.Constraint("PointOnObject", 0, 3, -1))
sketch1.addConstraint(Sketcher.Constraint("PointOnObject", 2, 3, -1))
sketch1.addConstraint(Sketcher.Constraint("PointOnObject", 4, 3, -1))
sketch1.addConstraint(Sketcher.Constraint("PointOnObject", 0, 1, -1))
sketch1.addConstraint(Sketcher.Constraint("PointOnObject", 2, 1, -1))
sketch1.addConstraint(Sketcher.Constraint("PointOnObject", 14, 2, -1))
sketch1.addConstraint(Sketcher.Constraint("Parallel", 14, 17))
sketch1.addConstraint(Sketcher.Constraint("Horizontal", 8, 3, 10, 3))
sketch1.addConstraint(Sketcher.Constraint("Horizontal", 10, 3, 12, 3))
sketch1.addConstraint(Sketcher.Constraint("Horizontal", 20, 3, 21, 3))
sketch1.addConstraint(Sketcher.Constraint("Horizontal", 22, 3, 23, 3))
sketch1.addConstraint(Sketcher.Constraint("Horizontal", 21, 3, 24, 3))
sketch1.addConstraint(Sketcher.Constraint("Horizontal", 23, 3, 25, 3))
sketch1.addConstraint(Sketcher.Constraint("Horizontal", 26, 3, 27, 3))
sketch1.addConstraint(Sketcher.Constraint("Horizontal", 28, 3, 29, 3))
sketch1.addConstraint(Sketcher.Constraint("Horizontal", 27, 3, 30, 3))
sketch1.addConstraint(Sketcher.Constraint("Horizontal", 29, 3, 31, 3))
sketch1.addConstraint(Sketcher.Constraint("Horizontal", 32, 3, 34, 3))
sketch1.addConstraint(Sketcher.Constraint("Horizontal", 33, 3, 35, 3))
sketch1.addConstraint(Sketcher.Constraint("Horizontal", 36, 3, 37, 3))
sketch1.addConstraint(Sketcher.Constraint("Horizontal", 34, 3, 38, 3))
sketch1.addConstraint(Sketcher.Constraint("Horizontal", 35, 3, 39, 3))
sketch1.addConstraint(Sketcher.Constraint("Horizontal", 37, 3, 40, 3))
sketch1.addConstraint(Sketcher.Constraint("Horizontal", 41, 3, 42, 3))
sketch1.addConstraint(Sketcher.Constraint("Horizontal", 43, 3, 44, 3))
sketch1.addConstraint(Sketcher.Constraint("Horizontal", 42, 3, 45, 3))
sketch1.addConstraint(Sketcher.Constraint("Horizontal", 44, 3, 46, 3))
sketch1.addConstraint(Sketcher.Constraint("Horizontal", 47, 3, 49, 3))
sketch1.addConstraint(Sketcher.Constraint("Horizontal", 48, 3, 50, 3))
sketch1.addConstraint(Sketcher.Constraint("Horizontal", 51, 3, 52, 3))
sketch1.addConstraint(Sketcher.Constraint("Horizontal", 49, 3, 53, 3))
sketch1.addConstraint(Sketcher.Constraint("Horizontal", 50, 3, 54, 3))
sketch1.addConstraint(Sketcher.Constraint("Horizontal", 52, 3, 55, 3))
sketch1.addConstraint(Sketcher.Constraint("Horizontal", 56, 3, 57, 3))
sketch1.addConstraint(Sketcher.Constraint("Horizontal", 58, 3, 60, 3))
sketch1.addConstraint(Sketcher.Constraint("Horizontal", 59, 3, 61, 3))
sketch1.addConstraint(Sketcher.Constraint("Horizontal", 57, 3, 62, 3))
sketch1.addConstraint(Sketcher.Constraint("Horizontal", 60, 3, 63, 3))
sketch1.addConstraint(Sketcher.Constraint("Horizontal", 61, 3, 64, 3))
sketch1.addConstraint(Sketcher.Constraint("Horizontal", 65, 3, 66, 3))
sketch1.addConstraint(Sketcher.Constraint("Horizontal", 67, 3, 68, 3))
sketch1.addConstraint(Sketcher.Constraint("Horizontal", 66, 3, 69, 3))
sketch1.addConstraint(Sketcher.Constraint("Horizontal", 68, 3, 70, 3))
sketch1.addConstraint(Sketcher.Constraint("Horizontal", 71, 3, 72, 3))
sketch1.addConstraint(Sketcher.Constraint("Horizontal", 73, 3, 74, 3))
sketch1.addConstraint(Sketcher.Constraint("Horizontal", 72, 3, 75, 3))
sketch1.addConstraint(Sketcher.Constraint("Horizontal", 74, 3, 76, 3))
sketch1.addConstraint(Sketcher.Constraint("Horizontal", 12, 3, 6, 2))
sketch1.addConstraint(Sketcher.Constraint("Horizontal", 7, 2, 8, 1))
sketch1.addConstraint(Sketcher.Constraint("Horizontal", 9, 2, 10, 1))
sketch1.addConstraint(Sketcher.Constraint("Horizontal", 11, 2, 12, 1))
sketch1.addConstraint(Sketcher.Constraint("Vertical", 4, 3, 8, 3))
sketch1.addConstraint(Sketcher.Constraint("Vertical", 2, 3, 10, 3))
sketch1.addConstraint(Sketcher.Constraint("Vertical", 0, 3, 12, 3))
sketch1.addConstraint(Sketcher.Constraint("Vertical", 8, 3, 20, 3))
sketch1.addConstraint(Sketcher.Constraint("Vertical", 10, 3, 21, 3))
sketch1.addConstraint(Sketcher.Constraint("Vertical", 20, 3, 22, 3))
sketch1.addConstraint(Sketcher.Constraint("Vertical", 21, 3, 23, 3))
sketch1.addConstraint(Sketcher.Constraint("Vertical", 12, 3, 24, 3))
sketch1.addConstraint(Sketcher.Constraint("Vertical", 24, 3, 25, 3))
sketch1.addConstraint(Sketcher.Constraint("Vertical", 22, 3, 26, 3))
sketch1.addConstraint(Sketcher.Constraint("Vertical", 23, 3, 27, 3))
sketch1.addConstraint(Sketcher.Constraint("Vertical", 26, 3, 28, 3))
sketch1.addConstraint(Sketcher.Constraint("Vertical", 27, 3, 29, 3))
sketch1.addConstraint(Sketcher.Constraint("Vertical", 25, 3, 30, 3))
sketch1.addConstraint(Sketcher.Constraint("Vertical", 30, 3, 31, 3))
sketch1.addConstraint(Sketcher.Constraint("Vertical", 28, 3, 32, 3))
sketch1.addConstraint(Sketcher.Constraint("Vertical", 32, 3, 33, 3))
sketch1.addConstraint(Sketcher.Constraint("Vertical", 29, 3, 34, 3))
sketch1.addConstraint(Sketcher.Constraint("Vertical", 34, 3, 35, 3))
sketch1.addConstraint(Sketcher.Constraint("Vertical", 33, 3, 36, 3))
sketch1.addConstraint(Sketcher.Constraint("Vertical", 35, 3, 37, 3))
sketch1.addConstraint(Sketcher.Constraint("Vertical", 31, 3, 38, 3))
sketch1.addConstraint(Sketcher.Constraint("Vertical", 38, 3, 39, 3))
sketch1.addConstraint(Sketcher.Constraint("Vertical", 39, 3, 40, 3))
sketch1.addConstraint(Sketcher.Constraint("Vertical", 36, 3, 41, 3))
sketch1.addConstraint(Sketcher.Constraint("Vertical", 37, 3, 42, 3))
sketch1.addConstraint(Sketcher.Constraint("Vertical", 41, 3, 43, 3))
sketch1.addConstraint(Sketcher.Constraint("Vertical", 42, 3, 44, 3))
sketch1.addConstraint(Sketcher.Constraint("Vertical", 40, 3, 45, 3))
sketch1.addConstraint(Sketcher.Constraint("Vertical", 45, 3, 46, 3))
sketch1.addConstraint(Sketcher.Constraint("Vertical", 43, 3, 47, 3))
sketch1.addConstraint(Sketcher.Constraint("Vertical", 47, 3, 48, 3))
sketch1.addConstraint(Sketcher.Constraint("Vertical", 44, 3, 49, 3))
sketch1.addConstraint(Sketcher.Constraint("Vertical", 49, 3, 50, 3))
sketch1.addConstraint(Sketcher.Constraint("Vertical", 48, 3, 51, 3))
sketch1.addConstraint(Sketcher.Constraint("Vertical", 50, 3, 52, 3))
sketch1.addConstraint(Sketcher.Constraint("Vertical", 46, 3, 53, 3))
sketch1.addConstraint(Sketcher.Constraint("Vertical", 53, 3, 54, 3))
sketch1.addConstraint(Sketcher.Constraint("Vertical", 54, 3, 55, 3))
sketch1.addConstraint(Sketcher.Constraint("Vertical", 51, 3, 56, 3))
sketch1.addConstraint(Sketcher.Constraint("Vertical", 52, 3, 57, 3))
sketch1.addConstraint(Sketcher.Constraint("Vertical", 56, 3, 58, 3))
sketch1.addConstraint(Sketcher.Constraint("Vertical", 58, 3, 59, 3))
sketch1.addConstraint(Sketcher.Constraint("Vertical", 57, 3, 60, 3))
sketch1.addConstraint(Sketcher.Constraint("Vertical", 60, 3, 61, 3))
sketch1.addConstraint(Sketcher.Constraint("Vertical", 55, 3, 62, 3))
sketch1.addConstraint(Sketcher.Constraint("Vertical", 62, 3, 63, 3))
sketch1.addConstraint(Sketcher.Constraint("Vertical", 63, 3, 64, 3))
sketch1.addConstraint(Sketcher.Constraint("Vertical", 59, 3, 65, 3))
sketch1.addConstraint(Sketcher.Constraint("Vertical", 61, 3, 66, 3))
sketch1.addConstraint(Sketcher.Constraint("Vertical", 65, 3, 67, 3))
sketch1.addConstraint(Sketcher.Constraint("Vertical", 66, 3, 68, 3))
sketch1.addConstraint(Sketcher.Constraint("Vertical", 64, 3, 69, 3))
sketch1.addConstraint(Sketcher.Constraint("Vertical", 69, 3, 70, 3))
sketch1.addConstraint(Sketcher.Constraint("Vertical", 67, 3, 71, 3))
sketch1.addConstraint(Sketcher.Constraint("Vertical", 68, 3, 72, 3))
sketch1.addConstraint(Sketcher.Constraint("Vertical", 71, 3, 73, 3))
sketch1.addConstraint(Sketcher.Constraint("Vertical", 72, 3, 74, 3))
sketch1.addConstraint(Sketcher.Constraint("Vertical", 70, 3, 75, 3))
sketch1.addConstraint(Sketcher.Constraint("Vertical", 75, 3, 76, 3))
sketch1.addConstraint(Sketcher.Constraint("Equal", 1, 3))
sketch1.addConstraint(Sketcher.Constraint("Diameter", 20, Q("5 mm")))
sketch1.addConstraint(Sketcher.Constraint("Radius", 16, Q("3 mm")))
sketch1.addConstraint(Sketcher.Constraint("DistanceY", 6, 2, 6, 1, Q("254 mm")))
sketch1.addConstraint(Sketcher.Constraint("DistanceX", -1, 1, 4, 3, Q("12.7 mm")))
sketch1.addConstraint(Sketcher.Constraint("DistanceY", 22, 3, -1, 1, Q("228.6 mm")))
sketch1.addConstraint(Sketcher.Constraint("DistanceY", 28, 3, -1, 1, Q("203.2 mm")))
sketch1.addConstraint(Sketcher.Constraint("DistanceY", 73, 3, -1, 1, Q("12.7 mm")))
sketch1.addConstraint(Sketcher.Constraint("Distance", 17, Q("240 mm")))
sketch1.addConstraint(Sketcher.Constraint("DistanceX", 1, 2, 1, 1, Q("7.7 mm")))
sketch1.addConstraint(Sketcher.Constraint("DistanceY", 47, 3, -1, 1, Q("127 mm")))
sketch1.addConstraint(Sketcher.Constraint("DistanceX", 13, 1, 13, 2, Q("198.05 mm")))
sketch1.addConstraint(Sketcher.Constraint("DistanceX", 15, 2, 15, 1, Q("172.65 mm")))
sketch1.addConstraint(Sketcher.Constraint("DistanceY", 20, 3, -1, 1, Q("241.3 mm")))
sketch1.addConstraint(Sketcher.Constraint("DistanceY", 26, 3, -1, 1, Q("215.9 mm")))
sketch1.addConstraint(Sketcher.Constraint("DistanceY", 32, 3, -1, 1, Q("190.5 mm")))
sketch1.addConstraint(Sketcher.Constraint("DistanceY", 33, 3, -1, 1, Q("177.8 mm")))
sketch1.addConstraint(Sketcher.Constraint("DistanceY", 36, 3, -1, 1, Q("165.1 mm")))
sketch1.addConstraint(Sketcher.Constraint("DistanceY", 41, 3, -1, 1, Q("152.4 mm")))
sketch1.addConstraint(Sketcher.Constraint("DistanceY", 43, 3, -1, 1, Q("139.7 mm")))
sketch1.addConstraint(Sketcher.Constraint("DistanceY", 48, 3, -1, 1, Q("114.3 mm")))
sketch1.addConstraint(Sketcher.Constraint("DistanceY", 51, 3, -1, 1, Q("101.6 mm")))
sketch1.addConstraint(Sketcher.Constraint("DistanceY", 56, 3, -1, 1, Q("88.9 mm")))
sketch1.addConstraint(Sketcher.Constraint("DistanceY", 58, 3, -1, 1, Q("76.2 mm")))
sketch1.addConstraint(Sketcher.Constraint("DistanceY", 59, 3, -1, 1, Q("63.5 mm")))
sketch1.addConstraint(Sketcher.Constraint("DistanceY", 65, 3, -1, 1, Q("50.8 mm")))
sketch1.addConstraint(Sketcher.Constraint("DistanceY", 67, 3, -1, 1, Q("38.1 mm")))
sketch1.addConstraint(Sketcher.Constraint("DistanceY", 71, 3, -1, 1, Q("25.4 mm")))
sketch1.addConstraint(Sketcher.Constraint("DistanceX", -1, 1, 16, 3, Q("204.0955 mm")))
sketch1.addConstraint(Sketcher.Constraint("DistanceY", 16, 3, -1, 1, Q("8.9553 mm")))
sketch1.setExpression("Constraints[205]", "Params.sketch1_diameter")
sketch1.setExpression("Constraints[206]", "Params.sketch1_radius")
sketch1.setExpression("Constraints[207]", "Params.sketch1_height")
sketch1.setExpression("Constraints[212]", "Params.sketch1_length")
sketch1.setExpression("Constraints[213]", "Params.sketch1_width")
pad1 = body.newObject("PartDesign::Pad", "Pad")
pad1.Profile = sketch1
pad1.setExpression("Length", "Params.pad1_length")

doc.recompute()
